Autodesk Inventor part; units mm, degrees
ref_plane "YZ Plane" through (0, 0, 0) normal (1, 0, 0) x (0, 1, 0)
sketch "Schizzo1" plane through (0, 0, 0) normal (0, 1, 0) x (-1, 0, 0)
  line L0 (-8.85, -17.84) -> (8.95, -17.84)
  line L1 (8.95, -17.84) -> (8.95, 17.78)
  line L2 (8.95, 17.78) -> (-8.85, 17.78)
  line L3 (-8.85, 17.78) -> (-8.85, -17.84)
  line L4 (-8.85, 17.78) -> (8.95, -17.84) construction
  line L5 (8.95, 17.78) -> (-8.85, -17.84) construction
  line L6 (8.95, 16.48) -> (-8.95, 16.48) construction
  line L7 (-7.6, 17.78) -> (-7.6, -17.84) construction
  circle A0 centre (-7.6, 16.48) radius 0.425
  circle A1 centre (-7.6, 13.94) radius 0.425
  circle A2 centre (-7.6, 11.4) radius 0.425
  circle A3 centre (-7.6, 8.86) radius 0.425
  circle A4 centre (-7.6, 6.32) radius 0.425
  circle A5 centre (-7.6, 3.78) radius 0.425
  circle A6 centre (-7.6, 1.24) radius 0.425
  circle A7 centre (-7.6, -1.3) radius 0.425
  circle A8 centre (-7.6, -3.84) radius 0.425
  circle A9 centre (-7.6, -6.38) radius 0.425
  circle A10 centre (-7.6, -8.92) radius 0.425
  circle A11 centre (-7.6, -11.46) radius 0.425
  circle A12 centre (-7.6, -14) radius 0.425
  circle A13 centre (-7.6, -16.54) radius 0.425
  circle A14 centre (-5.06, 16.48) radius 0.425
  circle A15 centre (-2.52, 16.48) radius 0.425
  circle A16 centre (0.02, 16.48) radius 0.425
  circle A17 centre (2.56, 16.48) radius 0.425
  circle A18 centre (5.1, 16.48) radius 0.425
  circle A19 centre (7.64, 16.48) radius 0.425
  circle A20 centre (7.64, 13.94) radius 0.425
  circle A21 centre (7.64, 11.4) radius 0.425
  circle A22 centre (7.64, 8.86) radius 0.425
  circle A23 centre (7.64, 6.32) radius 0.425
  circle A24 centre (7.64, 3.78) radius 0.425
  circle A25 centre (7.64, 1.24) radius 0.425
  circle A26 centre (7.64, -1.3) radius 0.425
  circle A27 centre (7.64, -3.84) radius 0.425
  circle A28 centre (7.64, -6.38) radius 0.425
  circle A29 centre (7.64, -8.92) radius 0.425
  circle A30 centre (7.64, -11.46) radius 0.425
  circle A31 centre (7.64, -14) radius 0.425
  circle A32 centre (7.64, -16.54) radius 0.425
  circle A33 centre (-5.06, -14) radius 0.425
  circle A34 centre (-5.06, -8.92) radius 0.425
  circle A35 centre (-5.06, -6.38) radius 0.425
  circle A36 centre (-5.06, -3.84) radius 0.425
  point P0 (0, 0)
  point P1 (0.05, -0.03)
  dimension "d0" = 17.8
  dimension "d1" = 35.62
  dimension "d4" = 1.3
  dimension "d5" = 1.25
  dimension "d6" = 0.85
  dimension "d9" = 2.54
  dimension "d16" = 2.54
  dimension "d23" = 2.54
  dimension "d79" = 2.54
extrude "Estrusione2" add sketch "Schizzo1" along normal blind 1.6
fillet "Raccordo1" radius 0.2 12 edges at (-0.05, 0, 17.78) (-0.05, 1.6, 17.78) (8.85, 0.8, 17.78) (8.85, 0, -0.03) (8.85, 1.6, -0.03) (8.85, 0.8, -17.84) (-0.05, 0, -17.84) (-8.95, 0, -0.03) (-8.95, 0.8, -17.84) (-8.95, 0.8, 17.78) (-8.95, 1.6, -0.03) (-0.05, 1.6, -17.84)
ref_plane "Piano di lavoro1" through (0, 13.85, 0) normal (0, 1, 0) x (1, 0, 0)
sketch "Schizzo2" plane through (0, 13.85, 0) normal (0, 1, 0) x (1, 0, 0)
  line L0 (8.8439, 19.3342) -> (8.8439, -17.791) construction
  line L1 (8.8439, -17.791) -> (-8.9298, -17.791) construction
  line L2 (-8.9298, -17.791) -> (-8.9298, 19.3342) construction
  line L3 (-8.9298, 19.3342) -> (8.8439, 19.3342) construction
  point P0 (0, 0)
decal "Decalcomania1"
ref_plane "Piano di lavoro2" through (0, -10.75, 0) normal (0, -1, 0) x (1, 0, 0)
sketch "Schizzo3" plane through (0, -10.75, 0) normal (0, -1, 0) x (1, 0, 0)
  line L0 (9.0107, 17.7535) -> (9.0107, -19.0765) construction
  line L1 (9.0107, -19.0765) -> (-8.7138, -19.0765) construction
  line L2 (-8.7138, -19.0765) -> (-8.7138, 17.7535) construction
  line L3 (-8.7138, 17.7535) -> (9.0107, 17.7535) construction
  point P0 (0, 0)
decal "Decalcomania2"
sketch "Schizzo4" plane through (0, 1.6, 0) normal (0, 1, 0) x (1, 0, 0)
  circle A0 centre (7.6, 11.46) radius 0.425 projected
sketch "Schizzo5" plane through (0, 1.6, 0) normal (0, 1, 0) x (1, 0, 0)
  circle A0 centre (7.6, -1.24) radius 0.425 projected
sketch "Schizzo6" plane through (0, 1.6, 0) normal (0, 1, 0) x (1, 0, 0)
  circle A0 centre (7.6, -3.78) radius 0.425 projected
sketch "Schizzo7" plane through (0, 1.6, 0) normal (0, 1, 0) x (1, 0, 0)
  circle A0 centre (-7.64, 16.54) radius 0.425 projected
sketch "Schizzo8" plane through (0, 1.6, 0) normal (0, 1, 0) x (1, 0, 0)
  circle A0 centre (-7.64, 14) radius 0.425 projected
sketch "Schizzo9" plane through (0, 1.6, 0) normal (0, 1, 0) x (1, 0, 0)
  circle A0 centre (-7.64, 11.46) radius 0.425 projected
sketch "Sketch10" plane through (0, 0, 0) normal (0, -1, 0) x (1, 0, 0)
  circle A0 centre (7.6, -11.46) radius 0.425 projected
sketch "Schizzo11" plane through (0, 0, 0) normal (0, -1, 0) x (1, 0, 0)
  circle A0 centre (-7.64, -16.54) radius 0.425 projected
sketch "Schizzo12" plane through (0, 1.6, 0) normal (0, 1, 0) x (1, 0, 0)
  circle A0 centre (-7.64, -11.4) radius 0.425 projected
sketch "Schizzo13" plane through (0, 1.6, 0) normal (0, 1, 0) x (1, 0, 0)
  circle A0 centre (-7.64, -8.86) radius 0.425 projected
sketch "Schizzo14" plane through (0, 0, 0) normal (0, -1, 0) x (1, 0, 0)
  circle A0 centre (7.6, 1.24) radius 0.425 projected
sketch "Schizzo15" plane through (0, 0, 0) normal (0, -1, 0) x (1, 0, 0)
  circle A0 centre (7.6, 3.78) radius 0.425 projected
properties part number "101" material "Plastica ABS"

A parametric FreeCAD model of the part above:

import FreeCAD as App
import Part
import Sketcher

V = App.Vector
Q = App.Units.Quantity


def edges_at(feature, points):
    """Names of the edges that pass closest to the given points."""
    edges = feature.Shape.Edges
    near = lambda p: min(range(len(edges)), key=lambda i: edges[i].distToShape(Part.Vertex(*p))[0])
    return sorted({f"Edge{near(p) + 1}" for p in points})


def add_polygon(sketch, points):
    """Adds a closed chain of lines whose ends are joined by coincident constraints."""
    first, n = sketch.GeometryCount, len(points)
    for a, b in zip(points, points[1:] + points[:1]):
        sketch.addGeometry(Part.LineSegment(App.Vector(*a, 0), App.Vector(*b, 0)), False)
    for i in range(n):
        sketch.addConstraint(Sketcher.Constraint("Coincident", first + i, 2, first + (i + 1) % n, 1))

doc = App.newDocument("Part")
body = doc.addObject("PartDesign::Body", "Body")

sketch1 = body.newObject("Sketcher::SketchObject", "Sketch")
sketch1.AttachmentSupport = (doc.getObject("XZ_Plane"), [""])
sketch1.MapMode = "FlatFace"
add_polygon(sketch1, [(8.85, 17.78), (8.85, -17.84), (-8.95, -17.84), (-8.95, 17.78)])
sketch1.addGeometry(Part.Circle(V(7.6, -16.54, 0), V(0, 0, 1), 0.425), False)
sketch1.addGeometry(Part.Circle(V(7.6, -14, 0), V(0, 0, 1), 0.425), False)
sketch1.addGeometry(Part.Circle(V(5.06, -14, 0), V(0, 0, 1), 0.425), False)
sketch1.addGeometry(Part.Circle(V(7.6, -11.46, 0), V(0, 0, 1), 0.425), False)
sketch1.addGeometry(Part.Circle(V(7.6, -8.92, 0), V(0, 0, 1), 0.425), False)
sketch1.addGeometry(Part.Circle(V(7.6, -6.38, 0), V(0, 0, 1), 0.425), False)
sketch1.addGeometry(Part.Circle(V(5.06, -8.92, 0), V(0, 0, 1), 0.425), False)
sketch1.addGeometry(Part.Circle(V(5.06, -6.38, 0), V(0, 0, 1), 0.425), False)
sketch1.addGeometry(Part.Circle(V(7.6, -3.84, 0), V(0, 0, 1), 0.425), False)
sketch1.addGeometry(Part.Circle(V(7.6, -1.3, 0), V(0, 0, 1), 0.425), False)
sketch1.addGeometry(Part.Circle(V(5.06, -3.84, 0), V(0, 0, 1), 0.425), False)
sketch1.addGeometry(Part.Circle(V(-7.64, -16.54, 0), V(0, 0, 1), 0.425), False)
sketch1.addGeometry(Part.Circle(V(-7.64, -14, 0), V(0, 0, 1), 0.425), False)
sketch1.addGeometry(Part.Circle(V(-7.64, -11.46, 0), V(0, 0, 1), 0.425), False)
sketch1.addGeometry(Part.Circle(V(-7.64, -8.92, 0), V(0, 0, 1), 0.425), False)
sketch1.addGeometry(Part.Circle(V(-7.64, -6.38, 0), V(0, 0, 1), 0.425), False)
sketch1.addGeometry(Part.Circle(V(-7.64, -3.84, 0), V(0, 0, 1), 0.425), False)
sketch1.addGeometry(Part.Circle(V(-7.64, -1.3, 0), V(0, 0, 1), 0.425), False)
sketch1.addGeometry(Part.Circle(V(7.6, 1.24, 0), V(0, 0, 1), 0.425), False)
sketch1.addGeometry(Part.Circle(V(7.6, 3.78, 0), V(0, 0, 1), 0.425), False)
sketch1.addGeometry(Part.Circle(V(7.6, 6.32, 0), V(0, 0, 1), 0.425), False)
sketch1.addGeometry(Part.Circle(V(7.6, 8.86, 0), V(0, 0, 1), 0.425), False)
sketch1.addGeometry(Part.Circle(V(7.6, 11.4, 0), V(0, 0, 1), 0.425), False)
sketch1.addGeometry(Part.Circle(V(7.6, 13.94, 0), V(0, 0, 1), 0.425), False)
sketch1.addGeometry(Part.Circle(V(7.6, 16.48, 0), V(0, 0, 1), 0.425), False)
sketch1.addGeometry(Part.Circle(V(5.06, 16.48, 0), V(0, 0, 1), 0.425), False)
sketch1.addGeometry(Part.Circle(V(2.52, 16.48, 0), V(0, 0, 1), 0.425), False)
sketch1.addGeometry(Part.Circle(V(-0.02, 16.48, 0), V(0, 0, 1), 0.425), False)
sketch1.addGeometry(Part.Circle(V(-7.64, 1.24, 0), V(0, 0, 1), 0.425), False)
sketch1.addGeometry(Part.Circle(V(-7.64, 3.78, 0), V(0, 0, 1), 0.425), False)
sketch1.addGeometry(Part.Circle(V(-7.64, 6.32, 0), V(0, 0, 1), 0.425), False)
sketch1.addGeometry(Part.Circle(V(-7.64, 8.86, 0), V(0, 0, 1), 0.425), False)
sketch1.addGeometry(Part.Circle(V(-2.56, 16.48, 0), V(0, 0, 1), 0.425), False)
sketch1.addGeometry(Part.Circle(V(-7.64, 11.4, 0), V(0, 0, 1), 0.425), False)
sketch1.addGeometry(Part.Circle(V(-5.1, 16.48, 0), V(0, 0, 1), 0.425), False)
sketch1.addGeometry(Part.Circle(V(-7.64, 13.94, 0), V(0, 0, 1), 0.425), False)
sketch1.addGeometry(Part.Circle(V(-7.64, 16.48, 0), V(0, 0, 1), 0.425), False)
sketch1.addConstraint(Sketcher.Constraint("Vertical", 0))
sketch1.addConstraint(Sketcher.Constraint("Horizontal", 1))
sketch1.addConstraint(Sketcher.Constraint("Vertical", 2))
sketch1.addConstraint(Sketcher.Constraint("Horizontal", 3))
sketch1.addConstraint(Sketcher.Constraint("Equal", 4, 5))
sketch1.addConstraint(Sketcher.Constraint("Equal", 5, 6))
sketch1.addConstraint(Sketcher.Constraint("Equal", 6, 7))
sketch1.addConstraint(Sketcher.Constraint("Equal", 7, 8))
sketch1.addConstraint(Sketcher.Constraint("Equal", 8, 9))
sketch1.addConstraint(Sketcher.Constraint("Equal", 9, 10))
sketch1.addConstraint(Sketcher.Constraint("Equal", 10, 11))
sketch1.addConstraint(Sketcher.Constraint("Equal", 11, 12))
sketch1.addConstraint(Sketcher.Constraint("Equal", 12, 13))
sketch1.addConstraint(Sketcher.Constraint("Equal", 13, 14))
sketch1.addConstraint(Sketcher.Constraint("Equal", 14, 15))
sketch1.addConstraint(Sketcher.Constraint("Equal", 15, 16))
sketch1.addConstraint(Sketcher.Constraint("Equal", 16, 17))
sketch1.addConstraint(Sketcher.Constraint("Equal", 17, 18))
sketch1.addConstraint(Sketcher.Constraint("Equal", 18, 19))
sketch1.addConstraint(Sketcher.Constraint("Equal", 19, 20))
sketch1.addConstraint(Sketcher.Constraint("Equal", 20, 21))
sketch1.addConstraint(Sketcher.Constraint("Equal", 21, 22))
sketch1.addConstraint(Sketcher.Constraint("Equal", 22, 23))
sketch1.addConstraint(Sketcher.Constraint("Equal", 23, 24))
sketch1.addConstraint(Sketcher.Constraint("Equal", 24, 25))
sketch1.addConstraint(Sketcher.Constraint("Equal", 25, 26))
sketch1.addConstraint(Sketcher.Constraint("Equal", 26, 27))
sketch1.addConstraint(Sketcher.Constraint("Equal", 27, 28))
sketch1.addConstraint(Sketcher.Constraint("Equal", 28, 29))
sketch1.addConstraint(Sketcher.Constraint("Equal", 29, 30))
sketch1.addConstraint(Sketcher.Constraint("Equal", 30, 31))
sketch1.addConstraint(Sketcher.Constraint("Equal", 31, 32))
sketch1.addConstraint(Sketcher.Constraint("Equal", 32, 33))
sketch1.addConstraint(Sketcher.Constraint("Equal", 33, 34))
sketch1.addConstraint(Sketcher.Constraint("Equal", 34, 35))
sketch1.addConstraint(Sketcher.Constraint("Equal", 35, 36))
sketch1.addConstraint(Sketcher.Constraint("Equal", 36, 37))
sketch1.addConstraint(Sketcher.Constraint("Equal", 37, 38))
sketch1.addConstraint(Sketcher.Constraint("Equal", 38, 39))
sketch1.addConstraint(Sketcher.Constraint("Equal", 39, 40))
sketch1.addConstraint(Sketcher.Constraint("Horizontal", 5, 3, 6, 3))
sketch1.addConstraint(Sketcher.Constraint("Horizontal", 8, 3, 10, 3))
sketch1.addConstraint(Sketcher.Constraint("Horizontal", 9, 3, 11, 3))
sketch1.addConstraint(Sketcher.Constraint("Horizontal", 12, 3, 14, 3))
sketch1.addConstraint(Sketcher.Constraint("Horizontal", 4, 3, 15, 3))
sketch1.addConstraint(Sketcher.Constraint("Horizontal", 6, 3, 16, 3))
sketch1.addConstraint(Sketcher.Constraint("Horizontal", 7, 3, 17, 3))
sketch1.addConstraint(Sketcher.Constraint("Horizontal", 10, 3, 18, 3))
sketch1.addConstraint(Sketcher.Constraint("Horizontal", 11, 3, 19, 3))
sketch1.addConstraint(Sketcher.Constraint("Horizontal", 14, 3, 20, 3))
sketch1.addConstraint(Sketcher.Constraint("Horizontal", 13, 3, 21, 3))
sketch1.addConstraint(Sketcher.Constraint("Horizontal", 28, 3, 29, 3))
sketch1.addConstraint(Sketcher.Constraint("Horizontal", 29, 3, 30, 3))
sketch1.addConstraint(Sketcher.Constraint("Horizontal", 30, 3, 31, 3))
sketch1.addConstraint(Sketcher.Constraint("Horizontal", 22, 3, 32, 3))
sketch1.addConstraint(Sketcher.Constraint("Horizontal", 23, 3, 33, 3))
sketch1.addConstraint(Sketcher.Constraint("Horizontal", 24, 3, 34, 3))
sketch1.addConstraint(Sketcher.Constraint("Horizontal", 25, 3, 35, 3))
sketch1.addConstraint(Sketcher.Constraint("Horizontal", 31, 3, 36, 3))
sketch1.addConstraint(Sketcher.Constraint("Horizontal", 26, 3, 37, 3))
sketch1.addConstraint(Sketcher.Constraint("Horizontal", 36, 3, 38, 3))
sketch1.addConstraint(Sketcher.Constraint("Horizontal", 27, 3, 39, 3))
sketch1.addConstraint(Sketcher.Constraint("Horizontal", 38, 3, 40, 3))
sketch1.addConstraint(Sketcher.Constraint("Vertical", 4, 3, 5, 3))
sketch1.addConstraint(Sketcher.Constraint("Vertical", 5, 3, 7, 3))
sketch1.addConstraint(Sketcher.Constraint("Vertical", 7, 3, 8, 3))
sketch1.addConstraint(Sketcher.Constraint("Vertical", 8, 3, 9, 3))
sketch1.addConstraint(Sketcher.Constraint("Vertical", 6, 3, 10, 3))
sketch1.addConstraint(Sketcher.Constraint("Vertical", 10, 3, 11, 3))
sketch1.addConstraint(Sketcher.Constraint("Vertical", 9, 3, 12, 3))
sketch1.addConstraint(Sketcher.Constraint("Vertical", 12, 3, 13, 3))
sketch1.addConstraint(Sketcher.Constraint("Vertical", 11, 3, 14, 3))
sketch1.addConstraint(Sketcher.Constraint("Vertical", 15, 3, 16, 3))
sketch1.addConstraint(Sketcher.Constraint("Vertical", 16, 3, 17, 3))
sketch1.addConstraint(Sketcher.Constraint("Vertical", 17, 3, 18, 3))
sketch1.addConstraint(Sketcher.Constraint("Vertical", 18, 3, 19, 3))
sketch1.addConstraint(Sketcher.Constraint("Vertical", 19, 3, 20, 3))
sketch1.addConstraint(Sketcher.Constraint("Vertical", 20, 3, 21, 3))
sketch1.addConstraint(Sketcher.Constraint("Vertical", 13, 3, 22, 3))
sketch1.addConstraint(Sketcher.Constraint("Vertical", 22, 3, 23, 3))
sketch1.addConstraint(Sketcher.Constraint("Vertical", 23, 3, 24, 3))
sketch1.addConstraint(Sketcher.Constraint("Vertical", 24, 3, 25, 3))
sketch1.addConstraint(Sketcher.Constraint("Vertical", 25, 3, 26, 3))
sketch1.addConstraint(Sketcher.Constraint("Vertical", 26, 3, 27, 3))
sketch1.addConstraint(Sketcher.Constraint("Vertical", 27, 3, 28, 3))
sketch1.addConstraint(Sketcher.Constraint("Vertical", 14, 3, 29, 3))
sketch1.addConstraint(Sketcher.Constraint("Vertical", 21, 3, 32, 3))
sketch1.addConstraint(Sketcher.Constraint("Vertical", 32, 3, 33, 3))
sketch1.addConstraint(Sketcher.Constraint("Vertical", 33, 3, 34, 3))
sketch1.addConstraint(Sketcher.Constraint("Vertical", 34, 3, 35, 3))
sketch1.addConstraint(Sketcher.Constraint("Vertical", 35, 3, 37, 3))
sketch1.addConstraint(Sketcher.Constraint("Vertical", 37, 3, 39, 3))
sketch1.addConstraint(Sketcher.Constraint("Vertical", 39, 3, 40, 3))
sketch1.addConstraint(Sketcher.Constraint("Diameter", 4, Q("0.85 mm")))
sketch1.addConstraint(Sketcher.Constraint("DistanceX", 1, 2, 1, 1, Q("17.8 mm")))
sketch1.addConstraint(Sketcher.Constraint("DistanceY", 0, 2, 0, 1, Q("35.62 mm")))
sketch1.addConstraint(Sketcher.Constraint("DistanceY", 13, 3, -1, 1, Q("1.3 mm")))
sketch1.addConstraint(Sketcher.Constraint("DistanceY", 0, 2, 4, 3, Q("1.3 mm")))
sketch1.addConstraint(Sketcher.Constraint("DistanceY", 40, 3, 2, 2, Q("1.3 mm")))
sketch1.addConstraint(Sketcher.Constraint("DistanceY", 4, 3, 5, 3, Q("2.54 mm")))
sketch1.addConstraint(Sketcher.Constraint("DistanceX", 6, 3, 5, 3, Q("2.54 mm")))
sketch1.addConstraint(Sketcher.Constraint("DistanceY", 5, 3, 7, 3, Q("2.54 mm")))
sketch1.addConstraint(Sketcher.Constraint("DistanceY", 7, 3, 8, 3, Q("2.54 mm")))
sketch1.addConstraint(Sketcher.Constraint("DistanceY", 8, 3, 9, 3, Q("2.54 mm")))
sketch1.addConstraint(Sketcher.Constraint("DistanceY", 9, 3, 12, 3, Q("2.54 mm")))
sketch1.addConstraint(Sketcher.Constraint("DistanceY", 12, 3, 13, 3, Q("2.54 mm")))
sketch1.addConstraint(Sketcher.Constraint("DistanceY", 13, 3, 22, 3, Q("2.54 mm")))
sketch1.addConstraint(Sketcher.Constraint("DistanceY", 22, 3, 23, 3, Q("2.54 mm")))
sketch1.addConstraint(Sketcher.Constraint("DistanceY", 23, 3, 24, 3, Q("2.54 mm")))
sketch1.addConstraint(Sketcher.Constraint("DistanceY", 24, 3, 25, 3, Q("2.54 mm")))
sketch1.addConstraint(Sketcher.Constraint("DistanceY", 25, 3, 26, 3, Q("2.54 mm")))
sketch1.addConstraint(Sketcher.Constraint("DistanceY", 26, 3, 27, 3, Q("2.54 mm")))
sketch1.addConstraint(Sketcher.Constraint("DistanceX", 30, 3, 29, 3, Q("2.54 mm")))
sketch1.addConstraint(Sketcher.Constraint("DistanceX", 31, 3, 30, 3, Q("2.54 mm")))
sketch1.addConstraint(Sketcher.Constraint("DistanceX", 36, 3, 31, 3, Q("2.54 mm")))
sketch1.addConstraint(Sketcher.Constraint("DistanceX", 38, 3, 36, 3, Q("2.54 mm")))
sketch1.addConstraint(Sketcher.Constraint("DistanceX", 37, 3, 38, 3, Q("2.54 mm")))
sketch1.addConstraint(Sketcher.Constraint("DistanceX", 4, 3, 0, 2, Q("1.25 mm")))
sketch1.addConstraint(Sketcher.Constraint("DistanceX", -1, 1, 4, 3, Q("7.6 mm")))
pad1 = body.newObject("PartDesign::Pad", "Pad")
pad1.Profile = sketch1
pad1.Length = 1.6
pad1.Reversed = True
doc.recompute()

fillet = body.newObject("PartDesign::Fillet", "Fillet")
fillet.Base = (pad1, edges_at(pad1, [
    (-0.05, 0, 17.78),
    (-0.05, 1.6, 17.78),
    (8.85, 0.8, 17.78),
    (8.85, 0, -0.03),
    (8.85, 1.6, -0.03),
    (8.85, 0.8, -17.84),
    (-0.05, 0, -17.84),
    (-8.95, 0, -0.03),
    (-8.95, 0.8, -17.84),
    (-8.95, 0.8, 17.78),
    (-8.95, 1.6, -0.03),
    (-0.05, 1.6, -17.84),
]))
fillet.Radius = 0.2

doc.recompute()
